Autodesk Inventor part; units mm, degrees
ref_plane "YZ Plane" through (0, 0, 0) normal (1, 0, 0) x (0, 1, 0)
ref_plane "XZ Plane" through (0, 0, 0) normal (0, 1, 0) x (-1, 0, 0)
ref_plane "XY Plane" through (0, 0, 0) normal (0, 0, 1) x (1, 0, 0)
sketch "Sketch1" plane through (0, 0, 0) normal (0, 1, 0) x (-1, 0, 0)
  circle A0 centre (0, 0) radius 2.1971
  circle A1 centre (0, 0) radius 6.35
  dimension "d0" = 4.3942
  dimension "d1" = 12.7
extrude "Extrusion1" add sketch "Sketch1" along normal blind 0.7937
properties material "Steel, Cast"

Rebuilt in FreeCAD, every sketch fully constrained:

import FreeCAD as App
import Part
import Sketcher
Q = App.Units.Quantity

doc = App.newDocument("Part")
body = doc.addObject("PartDesign::Body", "Body")

sketch1 = doc.addObject("Sketcher::SketchObject", "Sketch")
body.addObject(sketch1)
sketch1.AttachmentSupport = (doc.XZ_Plane, [""])
sketch1.MapMode = "FlatFace"
sketch1.addGeometry([
    Part.Circle(App.Vector(0, 0, 0), App.Vector(0, 0, 1), 6.3),
    Part.Circle(App.Vector(0, 0, 0), App.Vector(0, 0, 1), 2.2),
], False)
sketch1.addConstraint([
    Sketcher.Constraint("Coincident", 0, 3, -1, 1),
    Sketcher.Constraint("Coincident", 1, 3, -1, 1),
    Sketcher.Constraint("Diameter", 0, Q("0.5 in")),
    Sketcher.Constraint("Diameter", 1, Q("0.173 in")),
])
pad1 = doc.addObject("PartDesign::Pad", "Pad")
body.addObject(pad1)
pad1.Profile = sketch1
pad1.Length = Q("0.031248 in")
pad1.Reversed = True

doc.recompute()
